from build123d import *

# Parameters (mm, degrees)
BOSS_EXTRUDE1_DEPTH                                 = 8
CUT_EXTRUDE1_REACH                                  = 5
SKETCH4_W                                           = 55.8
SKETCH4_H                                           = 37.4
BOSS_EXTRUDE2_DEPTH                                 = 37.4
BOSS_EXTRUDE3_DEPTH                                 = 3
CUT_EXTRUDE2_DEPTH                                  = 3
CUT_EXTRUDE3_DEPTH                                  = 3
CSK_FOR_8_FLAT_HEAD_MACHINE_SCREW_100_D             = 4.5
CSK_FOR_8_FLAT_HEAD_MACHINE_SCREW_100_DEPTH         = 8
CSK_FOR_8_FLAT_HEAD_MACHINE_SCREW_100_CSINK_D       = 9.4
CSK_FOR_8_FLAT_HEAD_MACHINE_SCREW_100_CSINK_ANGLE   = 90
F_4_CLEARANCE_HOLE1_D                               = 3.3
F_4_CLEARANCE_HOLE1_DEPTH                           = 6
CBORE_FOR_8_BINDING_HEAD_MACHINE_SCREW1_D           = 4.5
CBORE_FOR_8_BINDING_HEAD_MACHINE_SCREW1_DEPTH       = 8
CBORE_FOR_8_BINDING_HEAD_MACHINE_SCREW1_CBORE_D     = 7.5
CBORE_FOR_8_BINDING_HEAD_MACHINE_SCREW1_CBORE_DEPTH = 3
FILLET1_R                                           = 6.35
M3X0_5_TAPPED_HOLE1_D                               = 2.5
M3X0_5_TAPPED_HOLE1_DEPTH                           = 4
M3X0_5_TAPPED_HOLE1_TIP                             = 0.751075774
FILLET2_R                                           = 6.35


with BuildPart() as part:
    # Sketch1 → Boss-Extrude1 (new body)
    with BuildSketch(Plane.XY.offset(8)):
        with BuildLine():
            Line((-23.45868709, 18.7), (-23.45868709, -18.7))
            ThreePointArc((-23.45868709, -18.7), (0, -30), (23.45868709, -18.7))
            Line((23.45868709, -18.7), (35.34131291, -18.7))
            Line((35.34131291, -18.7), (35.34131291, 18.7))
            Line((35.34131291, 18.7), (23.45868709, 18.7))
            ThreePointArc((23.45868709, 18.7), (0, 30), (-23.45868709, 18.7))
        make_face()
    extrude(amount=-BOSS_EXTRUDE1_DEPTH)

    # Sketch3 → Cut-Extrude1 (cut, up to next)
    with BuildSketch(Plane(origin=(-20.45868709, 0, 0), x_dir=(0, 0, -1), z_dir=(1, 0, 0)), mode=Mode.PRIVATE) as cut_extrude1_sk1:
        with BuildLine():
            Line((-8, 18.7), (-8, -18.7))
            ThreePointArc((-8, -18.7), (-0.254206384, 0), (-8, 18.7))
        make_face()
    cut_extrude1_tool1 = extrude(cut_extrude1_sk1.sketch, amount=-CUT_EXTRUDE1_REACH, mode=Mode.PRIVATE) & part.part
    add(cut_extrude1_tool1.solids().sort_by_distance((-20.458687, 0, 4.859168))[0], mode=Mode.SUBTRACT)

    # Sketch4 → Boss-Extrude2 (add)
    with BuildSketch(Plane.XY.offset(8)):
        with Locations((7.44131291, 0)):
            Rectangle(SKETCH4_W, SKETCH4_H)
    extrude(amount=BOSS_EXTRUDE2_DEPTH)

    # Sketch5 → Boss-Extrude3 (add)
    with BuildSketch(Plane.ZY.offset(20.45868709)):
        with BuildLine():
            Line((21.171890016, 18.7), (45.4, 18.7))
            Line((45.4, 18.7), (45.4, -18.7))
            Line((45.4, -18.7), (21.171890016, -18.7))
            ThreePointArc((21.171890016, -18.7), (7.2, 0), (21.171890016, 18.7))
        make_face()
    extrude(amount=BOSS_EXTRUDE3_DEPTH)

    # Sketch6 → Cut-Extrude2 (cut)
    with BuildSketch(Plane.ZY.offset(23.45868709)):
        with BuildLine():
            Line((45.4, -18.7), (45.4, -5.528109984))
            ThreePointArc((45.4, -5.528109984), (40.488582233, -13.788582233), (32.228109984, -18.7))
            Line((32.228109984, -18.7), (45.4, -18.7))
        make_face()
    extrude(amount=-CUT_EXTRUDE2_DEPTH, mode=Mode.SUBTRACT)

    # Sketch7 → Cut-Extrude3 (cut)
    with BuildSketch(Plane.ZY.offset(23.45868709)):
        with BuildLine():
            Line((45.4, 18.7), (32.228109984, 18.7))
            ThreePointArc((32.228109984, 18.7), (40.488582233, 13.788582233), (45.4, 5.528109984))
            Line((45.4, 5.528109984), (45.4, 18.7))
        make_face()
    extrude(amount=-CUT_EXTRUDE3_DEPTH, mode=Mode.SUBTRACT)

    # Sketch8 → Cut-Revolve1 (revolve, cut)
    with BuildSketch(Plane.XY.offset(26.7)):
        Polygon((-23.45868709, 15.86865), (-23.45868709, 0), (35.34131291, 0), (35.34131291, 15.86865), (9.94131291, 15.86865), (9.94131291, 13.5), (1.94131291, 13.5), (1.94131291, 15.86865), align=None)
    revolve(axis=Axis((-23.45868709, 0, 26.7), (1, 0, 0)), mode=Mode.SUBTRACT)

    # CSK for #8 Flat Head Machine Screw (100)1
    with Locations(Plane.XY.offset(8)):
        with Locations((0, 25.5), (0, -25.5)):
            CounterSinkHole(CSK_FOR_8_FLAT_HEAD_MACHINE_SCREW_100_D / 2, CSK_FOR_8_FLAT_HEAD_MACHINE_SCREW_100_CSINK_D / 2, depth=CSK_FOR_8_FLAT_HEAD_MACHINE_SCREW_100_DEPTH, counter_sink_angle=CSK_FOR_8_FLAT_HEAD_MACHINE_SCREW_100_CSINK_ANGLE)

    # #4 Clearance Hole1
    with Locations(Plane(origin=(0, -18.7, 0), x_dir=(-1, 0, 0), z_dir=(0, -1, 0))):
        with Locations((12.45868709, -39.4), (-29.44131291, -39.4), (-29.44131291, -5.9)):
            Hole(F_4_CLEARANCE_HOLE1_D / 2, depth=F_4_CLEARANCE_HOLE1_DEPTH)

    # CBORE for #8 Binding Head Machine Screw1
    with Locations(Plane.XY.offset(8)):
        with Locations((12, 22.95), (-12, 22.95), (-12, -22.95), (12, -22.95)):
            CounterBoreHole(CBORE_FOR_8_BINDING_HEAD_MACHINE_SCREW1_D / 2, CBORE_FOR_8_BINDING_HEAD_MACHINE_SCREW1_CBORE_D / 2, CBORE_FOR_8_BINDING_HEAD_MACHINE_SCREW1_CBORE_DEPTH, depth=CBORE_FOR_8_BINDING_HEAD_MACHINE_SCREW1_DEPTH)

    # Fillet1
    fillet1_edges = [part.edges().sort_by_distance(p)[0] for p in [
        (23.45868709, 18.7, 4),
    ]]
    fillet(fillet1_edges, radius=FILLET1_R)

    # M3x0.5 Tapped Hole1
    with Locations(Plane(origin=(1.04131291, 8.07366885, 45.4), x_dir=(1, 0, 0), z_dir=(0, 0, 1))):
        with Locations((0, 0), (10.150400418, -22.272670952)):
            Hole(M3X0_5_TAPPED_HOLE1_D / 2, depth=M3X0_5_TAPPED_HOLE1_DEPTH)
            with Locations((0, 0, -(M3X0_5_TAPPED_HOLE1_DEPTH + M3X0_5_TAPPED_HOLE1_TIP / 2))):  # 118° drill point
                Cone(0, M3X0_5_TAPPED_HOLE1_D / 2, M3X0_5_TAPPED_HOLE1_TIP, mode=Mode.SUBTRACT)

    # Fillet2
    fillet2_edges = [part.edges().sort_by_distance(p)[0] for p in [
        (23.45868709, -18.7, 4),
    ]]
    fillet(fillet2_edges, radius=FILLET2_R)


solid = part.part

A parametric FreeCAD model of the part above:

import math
import FreeCAD as App
import Part
import Sketcher
Q = App.Units.Quantity


def edges_at(feature, points):
    """Names of the edges that pass closest to the given points."""
    edges = feature.Shape.Edges
    near = lambda p: min(range(len(edges)), key=lambda i: edges[i].distToShape(Part.Vertex(*p))[0])
    return sorted({f"Edge{near(p) + 1}" for p in points})

doc = App.newDocument("Part")
body = doc.addObject("PartDesign::Body", "Body")

# Sketch on XY plane
sketch1 = doc.addObject("Sketcher::SketchObject", "Sketch")
body.addObject(sketch1)
sketch1.AttachmentSupport = (doc.XY_Plane, [""])
sketch1.MapMode = "FlatFace"
sketch1.AttachmentOffset = App.Placement(App.Vector(0, 0, 8), App.Rotation())
sketch1.addGeometry([
    Part.LineSegment(App.Vector(-23, 19, 0), App.Vector(-23, -19, 0)),  # 0
    Part.ArcOfCircle(Part.Circle(App.Vector(0, 0, 0), App.Vector(0, 0, 1), 30), math.radians(-141), math.radians(-39)),  # 1
    Part.LineSegment(App.Vector(23, -19, 0), App.Vector(35, -19, 0)),  # 2
    Part.LineSegment(App.Vector(35, -19, 0), App.Vector(35, 19, 0)),  # 3
    Part.LineSegment(App.Vector(35, 19, 0), App.Vector(23, 19, 0)),  # 4
    Part.ArcOfCircle(Part.Circle(App.Vector(0, 0, 0), App.Vector(0, 0, 1), 30), math.radians(39), math.radians(141)),  # 5
], False)
sketch1.addConstraint([
    Sketcher.Constraint("Coincident", 0, 2, 1, 1),
    Sketcher.Constraint("Coincident", 1, 2, 2, 1),
    Sketcher.Constraint("Coincident", 2, 2, 3, 1),
    Sketcher.Constraint("Coincident", 3, 2, 4, 1),
    Sketcher.Constraint("Coincident", 4, 2, 5, 1),
    Sketcher.Constraint("Coincident", 5, 2, 0, 1),
    Sketcher.Constraint("Vertical", 0),
    Sketcher.Constraint("Horizontal", 2),
    Sketcher.Constraint("Vertical", 3),
    Sketcher.Constraint("Horizontal", 4),
    Sketcher.Constraint("Coincident", 1, 3, -1, 1),
    Sketcher.Constraint("Coincident", 5, 3, -1, 1),
    Sketcher.Constraint("Equal", 1, 5),
    Sketcher.Constraint("Horizontal", 0, 2, 1, 2),
    Sketcher.Constraint("Horizontal", 4, 2, 5, 2),
    Sketcher.Constraint("Radius", 1, Q("30 mm")),
    Sketcher.Constraint("DistanceY", 0, 2, 0, 1, Q("37.4 mm")),
    Sketcher.Constraint("DistanceX", 0, 2, 2, 2, Q("58.8 mm")),
])
pad1 = doc.addObject("PartDesign::Pad", "Pad")
body.addObject(pad1)
pad1.Profile = sketch1
pad1.Length = 8
pad1.Reversed = True

# Sketch on YZ plane
sketch2 = doc.addObject("Sketcher::SketchObject", "Sketch001")
body.addObject(sketch2)
sketch2.AttachmentSupport = (doc.YZ_Plane, [""])
sketch2.MapMode = "FlatFace"
sketch2.AttachmentOffset = App.Placement(App.Vector(0, 0, -20.458687), App.Rotation())
sketch2.addGeometry([
    Part.LineSegment(App.Vector(19, 8, 0), App.Vector(-19, 8, 0)),
    Part.ArcOfCircle(Part.Circle(App.Vector(0, 27, 0), App.Vector(0, 0, 1), 26), math.radians(-135), math.radians(-45)),
], False)
sketch2.addConstraint([
    Sketcher.Constraint("Coincident", 0, 1, 1, 2),
    Sketcher.Constraint("Coincident", 1, 1, 0, 2),
    Sketcher.Constraint("Horizontal", 0),
    Sketcher.Constraint("PointOnObject", 1, 3, -2),
    Sketcher.Constraint("DistanceX", 0, 2, 0, 1, Q("37.4 mm")),
    Sketcher.Constraint("DistanceY", -1, 1, 0, 1, Q("8 mm")),
    Sketcher.Constraint("DistanceY", -1, 1, 1, 3, Q("26.7 mm")),
])
pocket1 = doc.addObject("PartDesign::Pocket", "Pocket")
body.addObject(pocket1)
pocket1.Profile = sketch2
pocket1.Type = "UpToFirst"

# Sketch on XY plane
sketch3 = doc.addObject("Sketcher::SketchObject", "Sketch002")
body.addObject(sketch3)
sketch3.AttachmentSupport = (doc.XY_Plane, [""])
sketch3.MapMode = "FlatFace"
sketch3.AttachmentOffset = App.Placement(App.Vector(0, 0, 8), App.Rotation())
sketch3.addGeometry([
    Part.LineSegment(App.Vector(-20, 19, 0), App.Vector(-20, -19, 0)),
    Part.LineSegment(App.Vector(-20, -19, 0), App.Vector(35, -19, 0)),
    Part.LineSegment(App.Vector(35, -19, 0), App.Vector(35, 19, 0)),
    Part.LineSegment(App.Vector(35, 19, 0), App.Vector(-20, 19, 0)),
], False)
sketch3.addConstraint([
    Sketcher.Constraint("Coincident", 0, 2, 1, 1),
    Sketcher.Constraint("Coincident", 1, 2, 2, 1),
    Sketcher.Constraint("Coincident", 2, 2, 3, 1),
    Sketcher.Constraint("Coincident", 3, 2, 0, 1),
    Sketcher.Constraint("Vertical", 0),
    Sketcher.Constraint("Horizontal", 1),
    Sketcher.Constraint("Vertical", 2),
    Sketcher.Constraint("Horizontal", 3),
    Sketcher.Constraint("DistanceX", 1, 1, 1, 2, Q("55.8 mm")),
    Sketcher.Constraint("DistanceY", 0, 2, 0, 1, Q("37.4 mm")),
    Sketcher.Constraint("DistanceY", 0, 2, -1, 1, Q("18.7 mm")),
    Sketcher.Constraint("DistanceX", 0, 2, -1, 1, Q("20.458687 mm")),
])
pad2 = doc.addObject("PartDesign::Pad", "Pad001")
body.addObject(pad2)
pad2.Profile = sketch3
pad2.Length = 37.4

# Sketch on YZ plane
sketch4 = doc.addObject("Sketcher::SketchObject", "Sketch003")
body.addObject(sketch4)
sketch4.AttachmentSupport = (doc.YZ_Plane, [""])
sketch4.MapMode = "FlatFace"
sketch4.AttachmentOffset = App.Placement(App.Vector(0, 0, -20.458687), App.Rotation())
sketch4.addGeometry([
    Part.LineSegment(App.Vector(19, 45, 0), App.Vector(19, 21, 0)),
    Part.ArcOfCircle(Part.Circle(App.Vector(0, 27, 0), App.Vector(0, 0, 1), 20), math.radians(-164), math.radians(-16)),
    Part.LineSegment(App.Vector(-19, 21, 0), App.Vector(-19, 45, 0)),
    Part.LineSegment(App.Vector(-19, 45, 0), App.Vector(19, 45, 0)),
], False)
sketch4.addConstraint([
    Sketcher.Constraint("Coincident", 0, 2, 1, 2),
    Sketcher.Constraint("Coincident", 1, 1, 2, 1),
    Sketcher.Constraint("Coincident", 2, 2, 3, 1),
    Sketcher.Constraint("Coincident", 3, 2, 0, 1),
    Sketcher.Constraint("Vertical", 0),
    Sketcher.Constraint("Vertical", 2),
    Sketcher.Constraint("Horizontal", 3),
    Sketcher.Constraint("Symmetric", 0, 2, 1, 1, -2),
    Sketcher.Constraint("Radius", 1, Q("19.5 mm")),
    Sketcher.Constraint("DistanceX", 3, 1, 3, 2, Q("37.4 mm")),
    Sketcher.Constraint("DistanceY", -1, 1, 1, 3, Q("26.7 mm")),
    Sketcher.Constraint("DistanceY", -1, 1, 2, 2, Q("45.4 mm")),
])
pad3 = doc.addObject("PartDesign::Pad", "Pad002")
body.addObject(pad3)
pad3.Profile = sketch4
pad3.Length = 3
pad3.Reversed = True

# Sketch on YZ plane
sketch5 = doc.addObject("Sketcher::SketchObject", "Sketch004")
body.addObject(sketch5)
sketch5.AttachmentSupport = (doc.YZ_Plane, [""])
sketch5.MapMode = "FlatFace"
sketch5.AttachmentOffset = App.Placement(App.Vector(0, 0, -23.458687), App.Rotation())
sketch5.addGeometry([
    Part.LineSegment(App.Vector(-19, 45, 0), App.Vector(-6, 45, 0)),
    Part.ArcOfCircle(Part.Circle(App.Vector(0, 27, 0), App.Vector(0, 0, 1), 20), math.radians(106), math.radians(164)),
    Part.LineSegment(App.Vector(-19, 32, 0), App.Vector(-19, 45, 0)),
], False)
sketch5.addConstraint([
    Sketcher.Constraint("Coincident", 0, 2, 1, 1),
    Sketcher.Constraint("Coincident", 1, 2, 2, 1),
    Sketcher.Constraint("Coincident", 2, 2, 0, 1),
    Sketcher.Constraint("Horizontal", 0),
    Sketcher.Constraint("Vertical", 2),
    Sketcher.Constraint("PointOnObject", 1, 3, -2),
    Sketcher.Constraint("Equal", 0, 2),
    Sketcher.Constraint("Radius", 1, Q("19.5 mm")),
    Sketcher.Constraint("DistanceY", -1, 1, 1, 3, Q("26.7 mm")),
    Sketcher.Constraint("DistanceY", -1, 1, 0, 2, Q("45.4 mm")),
])
pocket2 = doc.addObject("PartDesign::Pocket", "Pocket001")
body.addObject(pocket2)
pocket2.Profile = sketch5
pocket2.Length = 3
pocket2.Reversed = True

# Sketch on YZ plane
sketch6 = doc.addObject("Sketcher::SketchObject", "Sketch005")
body.addObject(sketch6)
sketch6.AttachmentSupport = (doc.YZ_Plane, [""])
sketch6.MapMode = "FlatFace"
sketch6.AttachmentOffset = App.Placement(App.Vector(0, 0, -23.458687), App.Rotation())
sketch6.addGeometry([
    Part.LineSegment(App.Vector(19, 45, 0), App.Vector(19, 32, 0)),
    Part.ArcOfCircle(Part.Circle(App.Vector(0, 27, 0), App.Vector(0, 0, 1), 20), math.radians(16), math.radians(74)),
    Part.LineSegment(App.Vector(6, 45, 0), App.Vector(19, 45, 0)),
], False)
sketch6.addConstraint([
    Sketcher.Constraint("Coincident", 0, 2, 1, 1),
    Sketcher.Constraint("Coincident", 1, 2, 2, 1),
    Sketcher.Constraint("Coincident", 2, 2, 0, 1),
    Sketcher.Constraint("Vertical", 0),
    Sketcher.Constraint("Horizontal", 2),
    Sketcher.Constraint("PointOnObject", 1, 3, -2),
    Sketcher.Constraint("Equal", 2, 0),
    Sketcher.Constraint("Radius", 1, Q("19.5 mm")),
    Sketcher.Constraint("DistanceY", -1, 1, 1, 3, Q("26.7 mm")),
    Sketcher.Constraint("DistanceX", -1, 1, 0, 2, Q("18.7 mm")),
])
pocket3 = doc.addObject("PartDesign::Pocket", "Pocket002")
body.addObject(pocket3)
pocket3.Profile = sketch6
pocket3.Length = 3
pocket3.Reversed = True

# Sketch on XY plane
sketch7 = doc.addObject("Sketcher::SketchObject", "Sketch006")
body.addObject(sketch7)
sketch7.AttachmentSupport = (doc.XY_Plane, [""])
sketch7.MapMode = "FlatFace"
sketch7.AttachmentOffset = App.Placement(App.Vector(0, 0, 26.7), App.Rotation())
sketch7.addGeometry([
    Part.LineSegment(App.Vector(-23.5, 15.9, 0), App.Vector(-23.5, 0, 0)),  # 0
    Part.LineSegment(App.Vector(-23.5, 0, 0), App.Vector(35.3, 0, 0)),  # 1
    Part.LineSegment(App.Vector(35.3, 0, 0), App.Vector(35.3, 15.9, 0)),  # 2
    Part.LineSegment(App.Vector(35.3, 15.9, 0), App.Vector(9.9, 15.9, 0)),  # 3
    Part.LineSegment(App.Vector(9.9, 15.9, 0), App.Vector(9.9, 13.5, 0)),  # 4
    Part.LineSegment(App.Vector(9.9, 13.5, 0), App.Vector(1.9, 13.5, 0)),  # 5
    Part.LineSegment(App.Vector(1.9, 13.5, 0), App.Vector(1.9, 15.9, 0)),  # 6
    Part.LineSegment(App.Vector(1.9, 15.9, 0), App.Vector(-23.5, 15.9, 0)),  # 7
], False)
sketch7.addConstraint([
    Sketcher.Constraint("Coincident", 0, 2, 1, 1),
    Sketcher.Constraint("Coincident", 1, 2, 2, 1),
    Sketcher.Constraint("Coincident", 2, 2, 3, 1),
    Sketcher.Constraint("Coincident", 3, 2, 4, 1),
    Sketcher.Constraint("Coincident", 4, 2, 5, 1),
    Sketcher.Constraint("Coincident", 5, 2, 6, 1),
    Sketcher.Constraint("Coincident", 6, 2, 7, 1),
    Sketcher.Constraint("Coincident", 7, 2, 0, 1),
    Sketcher.Constraint("Vertical", 0),
    Sketcher.Constraint("Horizontal", 1),
    Sketcher.Constraint("Vertical", 2),
    Sketcher.Constraint("Horizontal", 3),
    Sketcher.Constraint("Vertical", 4),
    Sketcher.Constraint("Horizontal", 5),
    Sketcher.Constraint("Vertical", 6),
    Sketcher.Constraint("Horizontal", 7),
    Sketcher.Constraint("PointOnObject", 0, 2, -1),
    Sketcher.Constraint("Horizontal", 3, 2, 6, 2),
    Sketcher.Constraint("Equal", 3, 7),
    Sketcher.Constraint("DistanceX", 5, 2, 5, 1, Q("8 mm")),
    Sketcher.Constraint("DistanceX", 1, 1, 1, 2, Q("58.8 mm")),
    Sketcher.Constraint("DistanceY", -1, 1, 4, 2, Q("13.5 mm")),
    Sketcher.Constraint("DistanceY", 0, 2, 0, 1, Q("15.86865 mm")),
    Sketcher.Constraint("DistanceX", 0, 2, -1, 1, Q("23.458687 mm")),
])
groove = doc.addObject("PartDesign::Groove", "Groove")
body.addObject(groove)
groove.Profile = sketch7
groove.ReferenceAxis = (sketch7, ["H_Axis"])
groove.Angle = 360

# Sketch on XY plane
sketch8 = doc.addObject("Sketcher::SketchObject", "Sketch007")
body.addObject(sketch8)
sketch8.AttachmentSupport = (doc.XY_Plane, [""])
sketch8.MapMode = "FlatFace"
sketch8.AttachmentOffset = App.Placement(App.Vector(0, 0, 8), App.Rotation())
sketch8.addGeometry([
    Part.Circle(App.Vector(0, 25.5, 0), App.Vector(0, 0, 1), 2.2),
    Part.Circle(App.Vector(0, -25.5, 0), App.Vector(0, 0, 1), 2.2),
], False)
sketch8.addConstraint([
    Sketcher.Constraint("Equal", 0, 1),
    Sketcher.Constraint("Symmetric", 0, 3, 1, 3, -1, 1),
    Sketcher.Constraint("PointOnObject", 0, 3, -2),
    Sketcher.Constraint("Diameter", 0, Q("4.5 mm")),
    Sketcher.Constraint("DistanceY", 1, 3, 0, 3, Q("51 mm")),
])
doc.recompute()
hole = doc.addObject("PartDesign::Hole", "Hole")
body.addObject(hole)
hole.Profile = sketch8
hole.ThreadType = "None"
hole.Diameter = 4.5
hole.DepthType = "Dimension"
hole.Depth = 8
hole.DrillPoint = "Flat"
hole.HoleCutType = "Countersink"
hole.HoleCutDiameter = 9.4
hole.HoleCutCountersinkAngle = 90

# Sketch on XZ plane
sketch9 = doc.addObject("Sketcher::SketchObject", "Sketch008")
body.addObject(sketch9)
sketch9.AttachmentSupport = (doc.XZ_Plane, [""])
sketch9.MapMode = "FlatFace"
sketch9.AttachmentOffset = App.Placement(App.Vector(0, 0, 18.7), App.Rotation())
sketch9.addGeometry([
    Part.Circle(App.Vector(-12.5, 39.4, 0), App.Vector(0, 0, 1), 1.6),
    Part.Circle(App.Vector(29.4, 39.4, 0), App.Vector(0, 0, 1), 1.6),
    Part.Circle(App.Vector(29.4, 5.9, 0), App.Vector(0, 0, 1), 1.6),
], False)
sketch9.addConstraint([
    Sketcher.Constraint("Equal", 0, 1),
    Sketcher.Constraint("Equal", 1, 2),
    Sketcher.Constraint("Horizontal", 0, 3, 1, 3),
    Sketcher.Constraint("Vertical", 1, 3, 2, 3),
    Sketcher.Constraint("Diameter", 0, Q("3.3 mm")),
    Sketcher.Constraint("DistanceY", -1, 1, 0, 3, Q("39.4 mm")),
    Sketcher.Constraint("DistanceY", -1, 1, 2, 3, Q("5.9 mm")),
    Sketcher.Constraint("DistanceX", 0, 3, 1, 3, Q("41.9 mm")),
    Sketcher.Constraint("DistanceX", 0, 3, -1, 1, Q("12.458687 mm")),
])
doc.recompute()
hole2 = doc.addObject("PartDesign::Hole", "Hole001")
body.addObject(hole2)
hole2.Profile = sketch9
hole2.ThreadType = "None"
hole2.Diameter = 3.3
hole2.DepthType = "Dimension"
hole2.Depth = 6
hole2.DrillPoint = "Flat"

# Sketch on XY plane
sketch10 = doc.addObject("Sketcher::SketchObject", "Sketch009")
body.addObject(sketch10)
sketch10.AttachmentSupport = (doc.XY_Plane, [""])
sketch10.MapMode = "FlatFace"
sketch10.AttachmentOffset = App.Placement(App.Vector(0, 0, 8), App.Rotation())
sketch10.addGeometry([
    Part.Circle(App.Vector(12, 22.9, 0), App.Vector(0, 0, 1), 2.2),
    Part.Circle(App.Vector(-12, 22.9, 0), App.Vector(0, 0, 1), 2.2),
    Part.Circle(App.Vector(-12, -22.9, 0), App.Vector(0, 0, 1), 2.2),
    Part.Circle(App.Vector(12, -22.9, 0), App.Vector(0, 0, 1), 2.2),
], False)
sketch10.addConstraint([
    Sketcher.Constraint("Equal", 0, 1),
    Sketcher.Constraint("Equal", 1, 2),
    Sketcher.Constraint("Equal", 2, 3),
    Sketcher.Constraint("Symmetric", 0, 3, 2, 3, -1, 1),
    Sketcher.Constraint("Symmetric", 1, 3, 3, 3, -1, 1),
    Sketcher.Constraint("Symmetric", 0, 3, 1, 3, -2),
    Sketcher.Constraint("Diameter", 0, Q("4.5 mm")),
    Sketcher.Constraint("DistanceX", -1, 1, 0, 3, Q("12 mm")),
    Sketcher.Constraint("DistanceY", 2, 3, 1, 3, Q("45.9 mm")),
])
doc.recompute()
hole3 = doc.addObject("PartDesign::Hole", "Hole002")
body.addObject(hole3)
hole3.Profile = sketch10
hole3.ThreadType = "None"
hole3.Diameter = 4.5
hole3.DepthType = "Dimension"
hole3.Depth = 8
hole3.DrillPoint = "Flat"
hole3.HoleCutType = "Counterbore"
hole3.HoleCutDiameter = 7.5
hole3.HoleCutDepth = 3
doc.recompute()

fillet = doc.addObject("PartDesign::Fillet", "Fillet")
body.addObject(fillet)
fillet.Base = (hole3, edges_at(hole3, [(23.459, 18.7, 4)]))
fillet.Radius = 6.35

# Sketch on XY plane
sketch11 = doc.addObject("Sketcher::SketchObject", "Sketch010")
body.addObject(sketch11)
sketch11.AttachmentSupport = (doc.XY_Plane, [""])
sketch11.MapMode = "FlatFace"
sketch11.AttachmentOffset = App.Placement(App.Vector(0, 0, 45.4), App.Rotation())
sketch11.addGeometry([
    Part.Circle(App.Vector(1, 8.1, 0), App.Vector(0, 0, 1), 1.2),
    Part.Circle(App.Vector(11.2, -14.2, 0), App.Vector(0, 0, 1), 1.2),
], False)
sketch11.addConstraint([
    Sketcher.Constraint("Equal", 0, 1),
    Sketcher.Constraint("Diameter", 0, Q("2.5 mm")),
    Sketcher.Constraint("DistanceX", 0, 3, 1, 3, Q("10.1504 mm")),
    Sketcher.Constraint("DistanceY", -1, 1, 0, 3, Q("8.073669 mm")),
    Sketcher.Constraint("DistanceY", 1, 3, 0, 3, Q("22.272671 mm")),
    Sketcher.Constraint("DistanceX", -1, 1, 0, 3, Q("1.041313 mm")),
])
doc.recompute()
hole4 = doc.addObject("PartDesign::Hole", "Hole003")
body.addObject(hole4)
hole4.Profile = sketch11
hole4.ThreadType = "None"
hole4.Diameter = 2.5
hole4.DepthType = "Dimension"
hole4.Depth = 4
hole4.DrillPoint = "Angled"
hole4.DrillPointAngle = 118
doc.recompute()

fillet2 = doc.addObject("PartDesign::Fillet", "Fillet001")
body.addObject(fillet2)
fillet2.Base = (hole4, edges_at(hole4, [(23.459, -18.7, 4)]))
fillet2.Radius = 6.35

doc.recompute()
